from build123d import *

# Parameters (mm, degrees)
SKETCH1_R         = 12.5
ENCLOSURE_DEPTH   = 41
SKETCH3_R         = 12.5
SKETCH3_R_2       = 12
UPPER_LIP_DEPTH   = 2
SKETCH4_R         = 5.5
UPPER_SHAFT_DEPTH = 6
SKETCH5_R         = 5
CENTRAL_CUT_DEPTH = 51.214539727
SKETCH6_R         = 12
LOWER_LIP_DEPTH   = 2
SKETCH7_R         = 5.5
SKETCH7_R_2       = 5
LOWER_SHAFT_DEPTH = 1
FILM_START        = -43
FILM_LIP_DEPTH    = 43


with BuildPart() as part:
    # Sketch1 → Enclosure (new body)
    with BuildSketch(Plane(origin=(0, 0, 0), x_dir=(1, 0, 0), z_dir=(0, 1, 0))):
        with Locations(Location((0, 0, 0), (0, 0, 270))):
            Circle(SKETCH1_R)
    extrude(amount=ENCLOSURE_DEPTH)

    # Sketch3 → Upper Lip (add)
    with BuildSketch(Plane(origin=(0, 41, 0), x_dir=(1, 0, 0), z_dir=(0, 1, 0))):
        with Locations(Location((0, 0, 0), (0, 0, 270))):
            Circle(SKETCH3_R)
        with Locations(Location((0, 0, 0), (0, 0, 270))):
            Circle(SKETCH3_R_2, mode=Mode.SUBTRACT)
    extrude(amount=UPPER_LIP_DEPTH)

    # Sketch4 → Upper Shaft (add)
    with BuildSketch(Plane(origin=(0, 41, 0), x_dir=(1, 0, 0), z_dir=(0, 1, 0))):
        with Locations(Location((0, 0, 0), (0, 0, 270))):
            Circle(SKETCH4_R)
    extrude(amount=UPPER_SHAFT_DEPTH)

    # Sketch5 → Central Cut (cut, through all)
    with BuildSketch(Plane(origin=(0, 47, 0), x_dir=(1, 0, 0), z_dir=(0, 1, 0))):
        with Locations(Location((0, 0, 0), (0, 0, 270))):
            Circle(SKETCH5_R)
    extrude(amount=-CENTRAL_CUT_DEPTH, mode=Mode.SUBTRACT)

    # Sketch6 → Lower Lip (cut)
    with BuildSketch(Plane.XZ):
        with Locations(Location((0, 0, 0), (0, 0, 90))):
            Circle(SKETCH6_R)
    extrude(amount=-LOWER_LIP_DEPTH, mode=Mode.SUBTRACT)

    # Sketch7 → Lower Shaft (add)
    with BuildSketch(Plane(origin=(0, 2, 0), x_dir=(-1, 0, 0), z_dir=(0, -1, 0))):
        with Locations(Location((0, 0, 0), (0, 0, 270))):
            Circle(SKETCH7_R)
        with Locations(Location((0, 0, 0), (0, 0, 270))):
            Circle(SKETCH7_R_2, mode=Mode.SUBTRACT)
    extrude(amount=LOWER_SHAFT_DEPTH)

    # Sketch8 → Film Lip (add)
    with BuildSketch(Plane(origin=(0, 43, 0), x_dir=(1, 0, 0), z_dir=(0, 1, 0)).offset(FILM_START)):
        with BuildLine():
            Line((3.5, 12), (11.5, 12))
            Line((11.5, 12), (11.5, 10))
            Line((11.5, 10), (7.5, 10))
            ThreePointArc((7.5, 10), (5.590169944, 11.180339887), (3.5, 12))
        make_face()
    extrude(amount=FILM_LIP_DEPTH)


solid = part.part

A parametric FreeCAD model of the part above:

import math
import FreeCAD as App
import Part
import Sketcher

V = App.Vector

doc = App.newDocument("Part")
body = doc.addObject("PartDesign::Body", "Body")

# Sketch on XZ plane
sketch1 = body.newObject("Sketcher::SketchObject", "Sketch")
sketch1.AttachmentSupport = (doc.getObject("XZ_Plane"), [""])
sketch1.MapMode = "FlatFace"
sketch1.addGeometry(Part.Circle(V(0, 0, 0), V(0, 0, 1), 12), False)
sketch1.addConstraint([
    Sketcher.Constraint("Coincident", 0, 3, -1, 1),
    Sketcher.Constraint("Diameter", 0, 25.0),
])
pad1 = body.newObject("PartDesign::Pad", "Pad")
pad1.Profile = sketch1
pad1.Length = 41
pad1.Reversed = True

# Sketch on XZ plane
sketch2 = body.newObject("Sketcher::SketchObject", "Sketch001")
sketch2.AttachmentSupport = (doc.getObject("XZ_Plane"), [""])
sketch2.MapMode = "FlatFace"
sketch2.AttachmentOffset = App.Placement(V(0, 0, -41), App.Rotation())
sketch2.addGeometry([
    Part.Circle(V(0, 0, 0), V(0, 0, 1), 12),
    Part.Circle(V(0, 0, 0), V(0, 0, 1), 12),
], False)
sketch2.addConstraint([
    Sketcher.Constraint("Coincident", 0, 3, -1, 1),
    Sketcher.Constraint("Coincident", 1, 3, -1, 1),
    Sketcher.Constraint("Diameter", 0, 25.0),
    Sketcher.Constraint("Diameter", 1, 24.0),
])
pad2 = body.newObject("PartDesign::Pad", "Pad001")
pad2.Profile = sketch2
pad2.Length = 2
pad2.Reversed = True

# Sketch on XZ plane
sketch3 = body.newObject("Sketcher::SketchObject", "Sketch002")
sketch3.AttachmentSupport = (doc.getObject("XZ_Plane"), [""])
sketch3.MapMode = "FlatFace"
sketch3.AttachmentOffset = App.Placement(V(0, 0, -41), App.Rotation())
sketch3.addGeometry(Part.Circle(V(0, 0, 0), V(0, 0, 1), 6), False)
sketch3.addConstraint([
    Sketcher.Constraint("Coincident", 0, 3, -1, 1),
    Sketcher.Constraint("Diameter", 0, 11.0),
])
pad3 = body.newObject("PartDesign::Pad", "Pad002")
pad3.Profile = sketch3
pad3.Length = 6
pad3.Reversed = True

# Sketch on XZ plane
sketch4 = body.newObject("Sketcher::SketchObject", "Sketch003")
sketch4.AttachmentSupport = (doc.getObject("XZ_Plane"), [""])
sketch4.MapMode = "FlatFace"
sketch4.AttachmentOffset = App.Placement(V(0, 0, -47), App.Rotation())
sketch4.addGeometry(Part.Circle(V(0, 0, 0), V(0, 0, 1), 5), False)
sketch4.addConstraint([
    Sketcher.Constraint("Coincident", 0, 3, -1, 1),
    Sketcher.Constraint("Diameter", 0, 10.0),
])
pocket1 = body.newObject("PartDesign::Pocket", "Pocket")
pocket1.Profile = sketch4
pocket1.Type = "ThroughAll"
pocket1.Reversed = True

# Sketch on XZ plane
sketch5 = body.newObject("Sketcher::SketchObject", "Sketch004")
sketch5.AttachmentSupport = (doc.getObject("XZ_Plane"), [""])
sketch5.MapMode = "FlatFace"
sketch5.addGeometry(Part.Circle(V(0, 0, 0), V(0, 0, 1), 12), False)
sketch5.addConstraint([
    Sketcher.Constraint("Coincident", 0, 3, -1, 1),
    Sketcher.Constraint("Diameter", 0, 24.0),
])
pocket2 = body.newObject("PartDesign::Pocket", "Pocket001")
pocket2.Profile = sketch5
pocket2.Length = 2

# Sketch on XZ plane
sketch6 = body.newObject("Sketcher::SketchObject", "Sketch005")
sketch6.AttachmentSupport = (doc.getObject("XZ_Plane"), [""])
sketch6.MapMode = "FlatFace"
sketch6.AttachmentOffset = App.Placement(V(0, 0, -2), App.Rotation())
sketch6.addGeometry([
    Part.Circle(V(0, 0, 0), V(0, 0, 1), 6),
    Part.Circle(V(0, 0, 0), V(0, 0, 1), 5),
], False)
sketch6.addConstraint([
    Sketcher.Constraint("Coincident", 0, 3, -1, 1),
    Sketcher.Constraint("Coincident", 1, 3, -1, 1),
    Sketcher.Constraint("Diameter", 0, 11.0),
    Sketcher.Constraint("Diameter", 1, 10.0),
])
pad4 = body.newObject("PartDesign::Pad", "Pad003")
pad4.Profile = sketch6
pad4.Length = 1

# Sketch on XZ plane
sketch7 = body.newObject("Sketcher::SketchObject", "Sketch006")
sketch7.AttachmentSupport = (doc.getObject("XZ_Plane"), [""])
sketch7.MapMode = "FlatFace"
sketch7.addGeometry([
    Part.LineSegment(V(11.5, -12, 0), V(3.5, -12, 0)),
    Part.ArcOfCircle(Part.Circle(V(0, 0, 0), V(0, 0, 1), 12.5), math.radians(-74), math.radians(-53)),
    Part.LineSegment(V(7.5, -10, 0), V(11.5, -10, 0)),
    Part.LineSegment(V(11.5, -10, 0), V(11.5, -12, 0)),
], False)
sketch7.addConstraint([
    Sketcher.Constraint("Coincident", 0, 2, 1, 1),
    Sketcher.Constraint("Coincident", 1, 2, 2, 1),
    Sketcher.Constraint("Coincident", 2, 2, 3, 1),
    Sketcher.Constraint("Coincident", 3, 2, 0, 1),
    Sketcher.Constraint("Horizontal", 0),
    Sketcher.Constraint("Horizontal", 2),
    Sketcher.Constraint("Vertical", 3),
    Sketcher.Constraint("Coincident", 1, 3, -1, 1),
    Sketcher.Constraint("Radius", 1, 12.5),
    Sketcher.Constraint("DistanceX", 0, 2, 0, 1, 8.0),
    Sketcher.Constraint("DistanceX", 2, 1, 2, 2, 4.0),
    Sketcher.Constraint("DistanceY", 3, 2, 3, 1, 2.0),
])
pad5 = body.newObject("PartDesign::Pad", "Pad004")
pad5.Profile = sketch7
pad5.Length = 43
pad5.Reversed = True

doc.recompute()
